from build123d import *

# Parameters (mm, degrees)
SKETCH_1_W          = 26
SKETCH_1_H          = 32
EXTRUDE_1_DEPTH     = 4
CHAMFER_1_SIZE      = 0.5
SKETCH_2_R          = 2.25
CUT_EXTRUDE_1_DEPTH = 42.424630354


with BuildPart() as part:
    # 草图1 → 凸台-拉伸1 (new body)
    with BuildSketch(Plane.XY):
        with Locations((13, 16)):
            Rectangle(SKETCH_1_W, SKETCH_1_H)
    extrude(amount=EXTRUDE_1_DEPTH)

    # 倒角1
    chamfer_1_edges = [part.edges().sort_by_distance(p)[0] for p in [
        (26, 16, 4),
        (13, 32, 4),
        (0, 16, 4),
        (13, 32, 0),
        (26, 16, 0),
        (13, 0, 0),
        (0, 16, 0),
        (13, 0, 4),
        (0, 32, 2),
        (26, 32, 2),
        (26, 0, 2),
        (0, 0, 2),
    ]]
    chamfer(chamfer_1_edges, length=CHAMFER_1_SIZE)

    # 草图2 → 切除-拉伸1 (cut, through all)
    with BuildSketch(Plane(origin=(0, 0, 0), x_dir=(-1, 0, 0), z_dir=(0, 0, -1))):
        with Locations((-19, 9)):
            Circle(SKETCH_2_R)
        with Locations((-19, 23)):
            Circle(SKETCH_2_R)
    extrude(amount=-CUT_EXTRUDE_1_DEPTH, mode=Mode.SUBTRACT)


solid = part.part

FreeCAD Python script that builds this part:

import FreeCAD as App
import Part
import Sketcher
Q = App.Units.Quantity


def add_polygon(sketch, points):
    """Adds a closed chain of lines whose ends are joined by coincident constraints."""
    first, n = sketch.GeometryCount, len(points)
    for a, b in zip(points, points[1:] + points[:1]):
        sketch.addGeometry(Part.LineSegment(App.Vector(*a, 0), App.Vector(*b, 0)), False)
    for i in range(n):
        sketch.addConstraint(Sketcher.Constraint("Coincident", first + i, 2, first + (i + 1) % n, 1))

doc = App.newDocument("Part")
body = doc.addObject("PartDesign::Body", "Body")

# Sketch on XY plane
sketch1 = body.newObject("Sketcher::SketchObject", "Sketch")
sketch1.AttachmentSupport = (doc.getObject("XY_Plane"), [""])
sketch1.MapMode = "FlatFace"
add_polygon(sketch1, [(0, 32), (0, 0), (26, 0), (26, 32)])  # lines 0-3
sketch1.addConstraint([
    Sketcher.Constraint("Vertical", 0),
    Sketcher.Constraint("Horizontal", 1),
    Sketcher.Constraint("Vertical", 2),
    Sketcher.Constraint("Horizontal", 3),
    Sketcher.Constraint("Coincident", 0, 2, -1, 1),
    Sketcher.Constraint("DistanceX", 1, 1, 1, 2, Q("26 mm")),
    Sketcher.Constraint("DistanceY", 0, 2, 0, 1, Q("32 mm")),
])
pad1 = body.newObject("PartDesign::Pad", "Pad")
pad1.Profile = sketch1
pad1.Length = 4
doc.recompute()

chamfer = body.newObject("PartDesign::Chamfer", "Chamfer")
chamfer.Base = (pad1, ["Edge1"])
chamfer.UseAllEdges = True
chamfer.Size = 0.5

# Sketch on XY plane
sketch2 = body.newObject("Sketcher::SketchObject", "Sketch001")
sketch2.AttachmentSupport = (doc.getObject("XY_Plane"), [""])
sketch2.MapMode = "FlatFace"
sketch2.addGeometry([
    Part.Circle(App.Vector(19, 9, 0), App.Vector(0, 0, 1), 2.2),
    Part.Circle(App.Vector(19, 23, 0), App.Vector(0, 0, 1), 2.2),
], False)
sketch2.addConstraint([
    Sketcher.Constraint("Equal", 0, 1),
    Sketcher.Constraint("Vertical", 0, 3, 1, 3),
    Sketcher.Constraint("Diameter", 0, Q("4.5 mm")),
    Sketcher.Constraint("DistanceX", -1, 1, 0, 3, Q("19 mm")),
    Sketcher.Constraint("DistanceY", -1, 1, 0, 3, Q("9 mm")),
    Sketcher.Constraint("DistanceY", -1, 1, 1, 3, Q("23 mm")),
])
pocket1 = body.newObject("PartDesign::Pocket", "Pocket")
pocket1.Profile = sketch2
pocket1.Type = "ThroughAll"
pocket1.Reversed = True

doc.recompute()
